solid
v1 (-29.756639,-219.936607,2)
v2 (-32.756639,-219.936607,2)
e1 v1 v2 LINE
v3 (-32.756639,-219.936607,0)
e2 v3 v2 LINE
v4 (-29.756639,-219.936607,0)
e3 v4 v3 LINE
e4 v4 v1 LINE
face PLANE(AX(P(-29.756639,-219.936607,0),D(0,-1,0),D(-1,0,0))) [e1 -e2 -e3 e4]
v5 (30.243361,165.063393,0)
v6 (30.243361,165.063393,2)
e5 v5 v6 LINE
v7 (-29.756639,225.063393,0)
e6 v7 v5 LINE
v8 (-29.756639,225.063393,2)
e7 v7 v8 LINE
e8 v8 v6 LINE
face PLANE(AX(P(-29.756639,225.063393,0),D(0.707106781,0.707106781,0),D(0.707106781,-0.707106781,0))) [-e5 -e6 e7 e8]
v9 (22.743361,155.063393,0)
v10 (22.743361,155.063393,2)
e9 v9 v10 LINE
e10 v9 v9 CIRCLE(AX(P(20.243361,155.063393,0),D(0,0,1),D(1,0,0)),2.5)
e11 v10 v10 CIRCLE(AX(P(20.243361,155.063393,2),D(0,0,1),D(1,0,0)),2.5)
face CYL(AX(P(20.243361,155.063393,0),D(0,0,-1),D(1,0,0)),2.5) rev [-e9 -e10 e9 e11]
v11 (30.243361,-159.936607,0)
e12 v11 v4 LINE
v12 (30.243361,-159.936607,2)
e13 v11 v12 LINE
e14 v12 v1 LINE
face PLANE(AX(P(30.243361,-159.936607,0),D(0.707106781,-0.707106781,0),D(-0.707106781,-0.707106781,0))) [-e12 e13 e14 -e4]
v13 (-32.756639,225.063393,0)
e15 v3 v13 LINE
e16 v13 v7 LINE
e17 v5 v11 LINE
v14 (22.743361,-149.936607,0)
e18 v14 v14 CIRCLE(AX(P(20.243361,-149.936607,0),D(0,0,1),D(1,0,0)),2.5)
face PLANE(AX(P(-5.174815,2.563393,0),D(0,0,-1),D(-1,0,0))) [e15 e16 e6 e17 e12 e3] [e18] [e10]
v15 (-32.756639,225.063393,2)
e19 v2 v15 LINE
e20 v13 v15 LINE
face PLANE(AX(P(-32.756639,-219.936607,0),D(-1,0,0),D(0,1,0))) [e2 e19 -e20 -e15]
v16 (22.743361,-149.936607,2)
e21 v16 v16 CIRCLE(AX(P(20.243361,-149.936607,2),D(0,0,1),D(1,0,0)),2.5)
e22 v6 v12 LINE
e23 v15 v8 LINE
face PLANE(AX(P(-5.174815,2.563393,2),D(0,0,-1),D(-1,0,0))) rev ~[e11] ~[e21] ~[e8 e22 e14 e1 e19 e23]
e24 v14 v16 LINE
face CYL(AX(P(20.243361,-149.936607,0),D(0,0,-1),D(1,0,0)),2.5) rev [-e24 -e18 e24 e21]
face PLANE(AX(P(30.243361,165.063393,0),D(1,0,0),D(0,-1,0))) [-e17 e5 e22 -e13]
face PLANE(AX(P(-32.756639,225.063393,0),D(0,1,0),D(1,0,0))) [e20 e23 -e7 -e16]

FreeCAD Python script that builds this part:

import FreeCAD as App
import Part
import Sketcher
from FreeCAD import Vector


def add_polygon(sketch, points):
    """Adds a closed chain of lines whose ends are joined by coincident constraints."""
    first, n = sketch.GeometryCount, len(points)
    for a, b in zip(points, points[1:] + points[:1]):
        sketch.addGeometry(Part.LineSegment(App.Vector(*a, 0), App.Vector(*b, 0)), False)
    for i in range(n):
        sketch.addConstraint(Sketcher.Constraint("Coincident", first + i, 2, first + (i + 1) % n, 1))

doc = App.newDocument("Part")
params = doc.addObject("Spreadsheet::Sheet", "Params")
for row, (alias, value) in enumerate([
    ("sketch1_diameter", "5 mm"),
    ("sketch1_width", "3 mm"),
    ("sketch1_height", "445 mm"),
    ("sketch1_height2", "325 mm"),
    ("pad1_length", "2 mm"),
], start=1):
    params.set(f"A{row}", alias)
    params.set(f"B{row}", "=" + value)
    params.setAlias(f"B{row}", alias)

body = doc.addObject("PartDesign::Body", "Body")

# Sketch on XY plane
sketch1 = body.newObject("Sketcher::SketchObject", "Sketch")
sketch1.AttachmentSupport = (doc.getObject("XY_Plane"), [""])
sketch1.MapMode = "FlatFace"
add_polygon(sketch1, [(-29.8, 225.1), (-32.8, 225.1), (-32.8, -219.9), (-29.8, -219.9), (30.2, -159.9), (30.2, 165.1)])  # lines 0-5
sketch1.addGeometry(Part.Circle(Vector(20.2, -149.9, 0), Vector(0, 0, 1), 2.5), False)  # 6
sketch1.addGeometry(Part.Circle(Vector(20.2, 155.1, 0), Vector(0, 0, 1), 2.5), False)  # 7
sketch1.addConstraint(Sketcher.Constraint("Horizontal", 0))
sketch1.addConstraint(Sketcher.Constraint("Vertical", 1))
sketch1.addConstraint(Sketcher.Constraint("Horizontal", 2))
sketch1.addConstraint(Sketcher.Constraint("Vertical", 4))
sketch1.addConstraint(Sketcher.Constraint("Equal", 6, 7))
sketch1.addConstraint(Sketcher.Constraint("Perpendicular", 3, 5))
sketch1.addConstraint(Sketcher.Constraint("Vertical", 6, 3, 7, 3))
sketch1.addConstraint(Sketcher.Constraint("Vertical", 2, 2, 5, 2))
sketch1.addConstraint(Sketcher.Constraint("Equal", 3, 5))
sketch1.addConstraint(Sketcher.Constraint("Diameter", 6, 5.0))
sketch1.addConstraint(Sketcher.Constraint("DistanceX", 0, 2, 0, 1, 3.0))
sketch1.addConstraint(Sketcher.Constraint("DistanceY", 1, 2, 1, 1, 445.0))
sketch1.addConstraint(Sketcher.Constraint("DistanceY", 4, 1, 4, 2, 325.0))
sketch1.addConstraint(Sketcher.Constraint("DistanceY", 6, 3, 7, 3, 305.0))
sketch1.addConstraint(Sketcher.Constraint("DistanceX", 0, 2, 7, 3, 53.0))
sketch1.addConstraint(Sketcher.Constraint("DistanceY", 7, 3, 0, 2, 70.0))
sketch1.addConstraint(Sketcher.Constraint("DistanceX", -1, 1, 6, 3, 20.243361))
sketch1.addConstraint(Sketcher.Constraint("DistanceY", 6, 3, -1, 1, 149.936607))
sketch1.setExpression("Constraints[15]", "Params.sketch1_diameter")
sketch1.setExpression("Constraints[16]", "Params.sketch1_width")
sketch1.setExpression("Constraints[17]", "Params.sketch1_height")
sketch1.setExpression("Constraints[18]", "Params.sketch1_height2")
pad1 = body.newObject("PartDesign::Pad", "Pad")
pad1.Profile = sketch1
pad1.setExpression("Length", "Params.pad1_length")

doc.recompute()
